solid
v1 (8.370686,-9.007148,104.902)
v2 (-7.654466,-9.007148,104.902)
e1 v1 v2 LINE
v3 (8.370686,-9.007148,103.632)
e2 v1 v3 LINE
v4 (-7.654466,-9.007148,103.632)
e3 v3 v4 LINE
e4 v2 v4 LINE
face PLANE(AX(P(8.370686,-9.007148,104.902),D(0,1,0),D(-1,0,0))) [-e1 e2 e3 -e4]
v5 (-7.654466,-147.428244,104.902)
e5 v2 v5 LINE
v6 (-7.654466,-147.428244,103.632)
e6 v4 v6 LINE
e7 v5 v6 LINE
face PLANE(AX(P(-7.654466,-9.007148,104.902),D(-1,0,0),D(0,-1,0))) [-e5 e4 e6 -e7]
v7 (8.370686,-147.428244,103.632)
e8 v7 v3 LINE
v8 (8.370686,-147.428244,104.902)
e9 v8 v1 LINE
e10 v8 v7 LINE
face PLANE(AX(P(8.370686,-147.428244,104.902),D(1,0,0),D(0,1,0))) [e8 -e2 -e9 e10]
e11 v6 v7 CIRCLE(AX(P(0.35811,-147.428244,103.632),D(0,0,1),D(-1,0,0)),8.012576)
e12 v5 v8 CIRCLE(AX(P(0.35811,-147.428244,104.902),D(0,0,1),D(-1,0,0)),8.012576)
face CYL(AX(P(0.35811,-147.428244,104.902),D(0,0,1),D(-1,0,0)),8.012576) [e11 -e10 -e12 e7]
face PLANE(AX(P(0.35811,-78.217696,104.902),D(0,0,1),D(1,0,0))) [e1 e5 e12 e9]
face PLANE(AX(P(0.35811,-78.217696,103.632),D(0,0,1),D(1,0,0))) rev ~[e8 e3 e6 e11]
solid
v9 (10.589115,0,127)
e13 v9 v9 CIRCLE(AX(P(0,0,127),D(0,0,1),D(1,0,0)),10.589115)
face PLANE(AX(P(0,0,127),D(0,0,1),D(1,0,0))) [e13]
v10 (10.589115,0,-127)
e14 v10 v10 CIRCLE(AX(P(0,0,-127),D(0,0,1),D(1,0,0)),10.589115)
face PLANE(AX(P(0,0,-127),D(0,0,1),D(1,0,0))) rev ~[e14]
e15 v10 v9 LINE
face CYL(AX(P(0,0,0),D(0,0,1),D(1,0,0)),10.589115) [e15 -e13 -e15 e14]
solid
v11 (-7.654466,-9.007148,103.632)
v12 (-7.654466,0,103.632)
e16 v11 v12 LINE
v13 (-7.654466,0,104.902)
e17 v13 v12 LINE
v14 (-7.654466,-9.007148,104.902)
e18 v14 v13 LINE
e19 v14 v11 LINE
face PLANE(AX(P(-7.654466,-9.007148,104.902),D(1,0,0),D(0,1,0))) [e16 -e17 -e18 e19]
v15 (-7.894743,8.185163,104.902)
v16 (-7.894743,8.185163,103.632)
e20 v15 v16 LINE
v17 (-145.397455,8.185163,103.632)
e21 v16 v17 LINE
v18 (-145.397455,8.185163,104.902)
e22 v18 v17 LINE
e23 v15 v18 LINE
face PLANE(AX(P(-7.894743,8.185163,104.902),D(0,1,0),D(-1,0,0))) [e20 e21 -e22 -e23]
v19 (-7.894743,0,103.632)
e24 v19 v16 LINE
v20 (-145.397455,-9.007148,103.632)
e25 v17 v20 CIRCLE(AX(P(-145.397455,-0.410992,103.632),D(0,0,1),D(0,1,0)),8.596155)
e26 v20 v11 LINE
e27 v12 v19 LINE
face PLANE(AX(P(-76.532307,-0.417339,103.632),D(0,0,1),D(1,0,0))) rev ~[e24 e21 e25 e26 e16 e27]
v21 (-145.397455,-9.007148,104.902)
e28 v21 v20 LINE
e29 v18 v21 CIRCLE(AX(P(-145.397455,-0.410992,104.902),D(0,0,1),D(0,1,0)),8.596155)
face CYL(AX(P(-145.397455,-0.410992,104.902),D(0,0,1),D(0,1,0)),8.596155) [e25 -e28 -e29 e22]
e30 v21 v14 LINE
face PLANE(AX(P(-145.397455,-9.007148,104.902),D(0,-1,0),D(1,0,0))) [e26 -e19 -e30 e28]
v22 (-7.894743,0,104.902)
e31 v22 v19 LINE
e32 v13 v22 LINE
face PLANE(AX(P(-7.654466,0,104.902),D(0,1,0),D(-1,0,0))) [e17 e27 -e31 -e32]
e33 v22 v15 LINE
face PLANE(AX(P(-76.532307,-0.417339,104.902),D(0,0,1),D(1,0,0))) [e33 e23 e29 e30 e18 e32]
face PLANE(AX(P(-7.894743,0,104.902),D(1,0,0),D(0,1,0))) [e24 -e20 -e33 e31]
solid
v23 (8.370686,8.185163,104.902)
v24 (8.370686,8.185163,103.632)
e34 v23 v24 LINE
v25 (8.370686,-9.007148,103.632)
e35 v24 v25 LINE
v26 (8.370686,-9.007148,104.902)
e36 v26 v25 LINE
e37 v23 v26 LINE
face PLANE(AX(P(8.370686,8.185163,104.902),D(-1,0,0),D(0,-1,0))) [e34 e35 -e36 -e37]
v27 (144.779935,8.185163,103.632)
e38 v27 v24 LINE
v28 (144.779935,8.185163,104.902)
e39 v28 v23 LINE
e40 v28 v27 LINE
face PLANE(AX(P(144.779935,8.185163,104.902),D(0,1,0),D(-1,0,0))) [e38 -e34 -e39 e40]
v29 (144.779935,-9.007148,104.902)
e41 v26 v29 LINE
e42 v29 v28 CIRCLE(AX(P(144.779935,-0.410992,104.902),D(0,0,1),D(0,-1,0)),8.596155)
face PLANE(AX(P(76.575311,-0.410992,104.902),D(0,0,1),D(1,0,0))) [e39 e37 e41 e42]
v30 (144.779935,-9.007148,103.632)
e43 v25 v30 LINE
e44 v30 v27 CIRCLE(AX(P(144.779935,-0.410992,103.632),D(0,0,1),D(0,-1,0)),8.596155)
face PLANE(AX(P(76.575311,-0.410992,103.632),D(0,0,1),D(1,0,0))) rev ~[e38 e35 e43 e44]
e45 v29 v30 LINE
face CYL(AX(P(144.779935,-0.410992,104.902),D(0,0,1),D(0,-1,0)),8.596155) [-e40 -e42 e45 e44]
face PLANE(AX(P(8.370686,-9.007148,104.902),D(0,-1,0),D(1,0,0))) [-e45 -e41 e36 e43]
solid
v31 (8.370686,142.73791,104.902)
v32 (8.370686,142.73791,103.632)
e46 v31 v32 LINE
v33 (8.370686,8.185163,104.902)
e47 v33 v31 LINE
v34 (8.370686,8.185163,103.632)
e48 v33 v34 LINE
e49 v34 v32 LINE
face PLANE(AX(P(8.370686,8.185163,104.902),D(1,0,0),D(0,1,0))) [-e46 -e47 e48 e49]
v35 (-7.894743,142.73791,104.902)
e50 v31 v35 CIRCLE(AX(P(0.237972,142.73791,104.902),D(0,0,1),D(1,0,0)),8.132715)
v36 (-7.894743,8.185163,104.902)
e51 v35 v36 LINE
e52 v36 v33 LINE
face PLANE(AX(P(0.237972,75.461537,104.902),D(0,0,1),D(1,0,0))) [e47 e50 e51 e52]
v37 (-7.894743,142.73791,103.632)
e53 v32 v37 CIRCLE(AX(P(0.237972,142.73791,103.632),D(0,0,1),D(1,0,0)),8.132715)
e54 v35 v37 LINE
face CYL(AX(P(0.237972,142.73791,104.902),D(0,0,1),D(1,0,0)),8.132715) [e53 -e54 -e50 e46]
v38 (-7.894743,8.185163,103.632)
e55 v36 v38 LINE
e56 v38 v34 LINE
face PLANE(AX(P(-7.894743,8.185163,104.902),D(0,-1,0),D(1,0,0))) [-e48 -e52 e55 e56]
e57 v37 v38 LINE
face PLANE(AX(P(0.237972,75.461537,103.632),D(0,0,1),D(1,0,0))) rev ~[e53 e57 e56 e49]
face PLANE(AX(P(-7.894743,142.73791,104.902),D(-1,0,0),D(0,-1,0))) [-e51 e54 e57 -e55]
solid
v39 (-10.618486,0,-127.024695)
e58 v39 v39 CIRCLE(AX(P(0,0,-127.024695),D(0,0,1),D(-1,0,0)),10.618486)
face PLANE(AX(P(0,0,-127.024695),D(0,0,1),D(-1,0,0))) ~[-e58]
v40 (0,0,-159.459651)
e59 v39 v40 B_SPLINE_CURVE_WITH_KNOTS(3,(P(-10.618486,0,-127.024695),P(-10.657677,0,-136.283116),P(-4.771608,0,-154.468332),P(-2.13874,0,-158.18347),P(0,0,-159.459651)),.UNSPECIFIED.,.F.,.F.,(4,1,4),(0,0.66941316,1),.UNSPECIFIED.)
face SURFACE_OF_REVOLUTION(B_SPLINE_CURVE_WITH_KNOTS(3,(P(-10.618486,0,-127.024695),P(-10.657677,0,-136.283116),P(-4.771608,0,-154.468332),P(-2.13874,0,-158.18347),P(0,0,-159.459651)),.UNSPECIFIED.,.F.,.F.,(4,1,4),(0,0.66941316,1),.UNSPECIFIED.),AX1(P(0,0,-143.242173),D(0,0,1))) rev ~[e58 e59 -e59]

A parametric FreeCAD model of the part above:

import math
import FreeCAD as App
import Part
import Sketcher
from FreeCAD import Vector
Q = App.Units.Quantity

doc = App.newDocument("Part")
body = doc.addObject("PartDesign::Body", "Body")

sketch1 = body.newObject("Sketcher::SketchObject", "Sketch")
sketch1.AttachmentSupport = (doc.getObject("XY_Plane"), [""])
sketch1.MapMode = "FlatFace"
sketch1.addGeometry(Part.Circle(Vector(0, 0, 0), Vector(0, 0, 1), 11), False)
sketch1.addConstraint([
    Sketcher.Constraint("Coincident", 0, 3, -1, 1),
    Sketcher.Constraint("Diameter", 0, 21.17823),
])
pad1 = body.newObject("PartDesign::Pad", "Pad")
pad1.Profile = sketch1
pad1.Length = Q("10 in")
pad1.Midplane = True
body2 = doc.addObject("PartDesign::Body", "Body001")

sketch2 = body2.newObject("Sketcher::SketchObject", "Sketch001")
sketch2.AttachmentSupport = (doc.getObject("XY_Plane001"), [""])
sketch2.MapMode = "FlatFace"
sketch2.AttachmentOffset = App.Placement(Vector(0, 0, 4.13 * 25.4), App.Rotation())
sketch2.addGeometry([
    Part.LineSegment(Vector(-7.89, 0, 0), Vector(-7.89, 8.19, 0)),
    Part.LineSegment(Vector(-7.89, 8.19, 0), Vector(-145.4, 8.19, 0)),
    Part.ArcOfCircle(Part.Circle(Vector(-145.4, -0.41, 0), Vector(0, 0, 1), 8.6), math.radians(90), math.radians(270)),
    Part.LineSegment(Vector(-145.4, -9.01, 0), Vector(-7.65, -9.01, 0)),
    Part.LineSegment(Vector(-7.65, -9.01, 0), Vector(-7.65, 0, 0)),
    Part.LineSegment(Vector(-7.65, 0, 0), Vector(-7.89, 0, 0)),
], False)
sketch2.addConstraint([
    Sketcher.Constraint("Coincident", 0, 2, 1, 1),
    Sketcher.Constraint("Tangent", 1, 2, 2, 1),
    Sketcher.Constraint("Tangent", 2, 2, 3, 1),
    Sketcher.Constraint("Coincident", 3, 2, 4, 1),
    Sketcher.Constraint("Coincident", 4, 2, 5, 1),
    Sketcher.Constraint("Coincident", 5, 2, 0, 1),
    Sketcher.Constraint("Vertical", 0),
    Sketcher.Constraint("Horizontal", 1),
    Sketcher.Constraint("Horizontal", 3),
    Sketcher.Constraint("Vertical", 4),
    Sketcher.Constraint("Horizontal", 5),
    Sketcher.Constraint("PointOnObject", 4, 2, -1),
    Sketcher.Constraint("Radius", 2, 8.596155),
    Sketcher.Constraint("DistanceX", 1, 2, 1, 1, 137.502711),
    Sketcher.Constraint("DistanceX", 3, 1, 3, 2, 137.742989),
    Sketcher.Constraint("DistanceY", 0, 1, 0, 2, 8.185163),
    Sketcher.Constraint("DistanceX", 2, 3, -1, 1, 145.397455),
])
pad2 = body2.newObject("PartDesign::Pad", "Pad001")
pad2.Profile = sketch2
pad2.Length = Q("0.05 in")
pad2.Reversed = True
body3 = doc.addObject("PartDesign::Body", "Body002")

sketch3 = body3.newObject("Sketcher::SketchObject", "Sketch002")
sketch3.AttachmentSupport = (doc.getObject("XY_Plane002"), [""])
sketch3.MapMode = "FlatFace"
sketch3.AttachmentOffset = App.Placement(Vector(0, 0, 4.13 * 25.4), App.Rotation())
sketch3.addGeometry([
    Part.LineSegment(Vector(8, 8, 0), Vector(8, 143, 0)),
    Part.ArcOfCircle(Part.Circle(Vector(0, 143, 0), Vector(0, 0, 1), 8), math.radians(0), math.radians(180)),
    Part.LineSegment(Vector(-8, 143, 0), Vector(-8, 8, 0)),
    Part.LineSegment(Vector(-8, 8, 0), Vector(8, 8, 0)),
], False)
sketch3.addConstraint([
    Sketcher.Constraint("Tangent", 0, 2, 1, 1),
    Sketcher.Constraint("Tangent", 1, 2, 2, 1),
    Sketcher.Constraint("Coincident", 2, 2, 3, 1),
    Sketcher.Constraint("Coincident", 3, 2, 0, 1),
    Sketcher.Constraint("Vertical", 0),
    Sketcher.Constraint("Vertical", 2),
    Sketcher.Constraint("Horizontal", 3),
    Sketcher.Constraint("Radius", 1, 8.132715),
    Sketcher.Constraint("DistanceY", 0, 1, 0, 2, 134.552747),
    Sketcher.Constraint("DistanceX", -1, 1, 1, 3, 0.237972),
    Sketcher.Constraint("DistanceY", -1, 1, 1, 3, 142.73791),
])
pad3 = body3.newObject("PartDesign::Pad", "Pad002")
pad3.Profile = sketch3
pad3.Length = Q("0.05 in")
pad3.Reversed = True
body4 = doc.addObject("PartDesign::Body", "Body003")

sketch4 = body4.newObject("Sketcher::SketchObject", "Sketch003")
sketch4.AttachmentSupport = (doc.getObject("XY_Plane003"), [""])
sketch4.MapMode = "FlatFace"
sketch4.AttachmentOffset = App.Placement(Vector(0, 0, 4.13 * 25.4), App.Rotation())
sketch4.addGeometry([
    Part.LineSegment(Vector(145, 8, 0), Vector(8, 8, 0)),
    Part.LineSegment(Vector(8, 8, 0), Vector(8, -9, 0)),
    Part.LineSegment(Vector(8, -9, 0), Vector(145, -9, 0)),
    Part.ArcOfCircle(Part.Circle(Vector(145, 0, 0), Vector(0, 0, 1), 9), math.radians(-90), math.radians(90)),
], False)
sketch4.addConstraint([
    Sketcher.Constraint("Coincident", 0, 2, 1, 1),
    Sketcher.Constraint("Coincident", 1, 2, 2, 1),
    Sketcher.Constraint("Tangent", 2, 2, 3, 1),
    Sketcher.Constraint("Tangent", 3, 2, 0, 1),
    Sketcher.Constraint("Horizontal", 0),
    Sketcher.Constraint("Vertical", 1),
    Sketcher.Constraint("Horizontal", 2),
    Sketcher.Constraint("Radius", 3, 8.596155),
    Sketcher.Constraint("DistanceX", 0, 2, 0, 1, 136.409249),
    Sketcher.Constraint("DistanceX", -1, 1, 3, 3, 144.779935),
    Sketcher.Constraint("DistanceY", 3, 3, -1, 1, 0.410992),
])
pad4 = body4.newObject("PartDesign::Pad", "Pad003")
pad4.Profile = sketch4
pad4.Length = Q("0.05 in")
pad4.Reversed = True
body5 = doc.addObject("PartDesign::Body", "Body004")

sketch5 = body5.newObject("Sketcher::SketchObject", "Sketch004")
sketch5.AttachmentSupport = (doc.getObject("XY_Plane004"), [""])
sketch5.MapMode = "FlatFace"
sketch5.AttachmentOffset = App.Placement(Vector(0, 0, 4.13 * 25.4), App.Rotation())
sketch5.addGeometry([
    Part.LineSegment(Vector(8, -9, 0), Vector(-8, -9, 0)),
    Part.LineSegment(Vector(-8, -9, 0), Vector(-8, -147, 0)),
    Part.ArcOfCircle(Part.Circle(Vector(0, -147, 0), Vector(0, 0, 1), 8), math.radians(180), math.radians(360)),
    Part.LineSegment(Vector(8, -147, 0), Vector(8, -9, 0)),
], False)
sketch5.addConstraint([
    Sketcher.Constraint("Coincident", 0, 2, 1, 1),
    Sketcher.Constraint("Tangent", 1, 2, 2, 1),
    Sketcher.Constraint("Tangent", 2, 2, 3, 1),
    Sketcher.Constraint("Coincident", 3, 2, 0, 1),
    Sketcher.Constraint("Horizontal", 0),
    Sketcher.Constraint("Vertical", 1),
    Sketcher.Constraint("Vertical", 3),
    Sketcher.Constraint("Radius", 2, 8.012576),
    Sketcher.Constraint("DistanceY", 1, 2, 1, 1, 138.421097),
    Sketcher.Constraint("DistanceX", -1, 1, 2, 3, 0.35811),
    Sketcher.Constraint("DistanceY", 2, 3, -1, 1, 147.428244),
])
pad5 = body5.newObject("PartDesign::Pad", "Pad004")
pad5.Profile = sketch5
pad5.Length = Q("0.05 in")
pad5.Reversed = True
body6 = doc.addObject("PartDesign::Body", "Body005")

sketch6 = body6.newObject("Sketcher::SketchObject", "Sketch005")
sketch6.AttachmentSupport = (doc.getObject("XZ_Plane005"), [""])
sketch6.MapMode = "FlatFace"
sketch6.addGeometry([
    Part.BSplineCurve([Vector(-10.618486, -127.024695, 0), Vector(-10.657677, -136.283116, 0), Vector(-4.771608, -154.468332, 0), Vector(-2.13874, -158.18347, 0), Vector(0, -159.459651, 0)], [4, 1, 4], [0, 0.66941316, 1], False, 3, [1, 1, 1, 1, 1], False),
    Part.LineSegment(Vector(0, -159.459651, 0), Vector(0, -127.024695, 0)),
    Part.LineSegment(Vector(0, -127.024695, 0), Vector(-10.618486, -127.024695, 0)),
], False)
sketch6.addConstraint([
    Sketcher.Constraint("Block", 0),
    Sketcher.Constraint("Coincident", 0, 2, 1, 1),
    Sketcher.Constraint("Coincident", 1, 2, 2, 1),
    Sketcher.Constraint("Coincident", 2, 2, 0, 1),
    Sketcher.Constraint("Vertical", 1),
    Sketcher.Constraint("Horizontal", 2),
])
revolution = body6.newObject("PartDesign::Revolution", "Revolution")
revolution.Profile = sketch6
revolution.ReferenceAxis = (sketch6, ["V_Axis"])
revolution.Angle = 360

doc.recompute()
